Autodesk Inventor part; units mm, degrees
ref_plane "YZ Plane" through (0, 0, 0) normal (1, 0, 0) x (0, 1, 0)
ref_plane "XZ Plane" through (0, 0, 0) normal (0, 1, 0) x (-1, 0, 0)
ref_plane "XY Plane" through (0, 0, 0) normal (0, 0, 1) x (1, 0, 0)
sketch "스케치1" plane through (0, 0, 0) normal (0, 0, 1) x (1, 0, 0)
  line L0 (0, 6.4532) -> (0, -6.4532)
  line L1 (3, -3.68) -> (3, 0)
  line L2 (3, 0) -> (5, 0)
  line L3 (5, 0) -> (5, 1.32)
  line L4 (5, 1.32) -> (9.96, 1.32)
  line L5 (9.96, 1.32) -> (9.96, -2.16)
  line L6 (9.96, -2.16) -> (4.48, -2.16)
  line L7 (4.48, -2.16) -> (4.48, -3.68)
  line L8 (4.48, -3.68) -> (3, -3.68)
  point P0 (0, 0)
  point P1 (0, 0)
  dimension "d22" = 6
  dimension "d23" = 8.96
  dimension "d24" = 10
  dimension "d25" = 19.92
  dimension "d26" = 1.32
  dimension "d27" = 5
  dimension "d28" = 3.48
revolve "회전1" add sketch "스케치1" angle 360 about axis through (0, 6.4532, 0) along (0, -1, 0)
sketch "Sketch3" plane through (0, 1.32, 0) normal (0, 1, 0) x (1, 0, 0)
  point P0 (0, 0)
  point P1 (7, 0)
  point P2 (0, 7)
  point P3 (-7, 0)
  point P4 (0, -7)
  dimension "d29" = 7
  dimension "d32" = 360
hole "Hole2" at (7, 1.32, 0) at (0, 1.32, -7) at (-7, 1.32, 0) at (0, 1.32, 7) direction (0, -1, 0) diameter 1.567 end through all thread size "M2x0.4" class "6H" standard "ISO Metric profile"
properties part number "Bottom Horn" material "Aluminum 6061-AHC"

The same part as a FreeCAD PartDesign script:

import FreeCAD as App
import Part
import Sketcher
from FreeCAD import Vector
Q = App.Units.Quantity

doc = App.newDocument("Part")
body = doc.addObject("PartDesign::Body", "Body")

# Sketch on XY plane
sketch1 = body.newObject("Sketcher::SketchObject", "Sketch")
sketch1.AttachmentSupport = (doc.getObject("XY_Plane"), [""])
sketch1.MapMode = "FlatFace"
sketch1.addGeometry(Part.LineSegment(Vector(3, 0, 0), Vector(3, -3.68, 0)), False)
sketch1.addGeometry(Part.LineSegment(Vector(3, -3.68, 0), Vector(4.48, -3.68, 0)), False)
sketch1.addGeometry(Part.LineSegment(Vector(4.48, -3.68, 0), Vector(4.48, -2.16, 0)), False)
sketch1.addGeometry(Part.LineSegment(Vector(4.48, -2.16, 0), Vector(9.96, -2.16, 0)), False)
sketch1.addGeometry(Part.LineSegment(Vector(9.96, -2.16, 0), Vector(9.96, 1.32, 0)), False)
sketch1.addGeometry(Part.LineSegment(Vector(9.96, 1.32, 0), Vector(5, 1.32, 0)), False)
sketch1.addGeometry(Part.LineSegment(Vector(5, 1.32, 0), Vector(5, 0, 0)), False)
sketch1.addGeometry(Part.LineSegment(Vector(5, 0, 0), Vector(3, 0, 0)), False)
sketch1.addConstraint(Sketcher.Constraint("Coincident", 0, 2, 1, 1))
sketch1.addConstraint(Sketcher.Constraint("Coincident", 1, 2, 2, 1))
sketch1.addConstraint(Sketcher.Constraint("Coincident", 2, 2, 3, 1))
sketch1.addConstraint(Sketcher.Constraint("Coincident", 3, 2, 4, 1))
sketch1.addConstraint(Sketcher.Constraint("Coincident", 4, 2, 5, 1))
sketch1.addConstraint(Sketcher.Constraint("Coincident", 5, 2, 6, 1))
sketch1.addConstraint(Sketcher.Constraint("Coincident", 6, 2, 7, 1))
sketch1.addConstraint(Sketcher.Constraint("Coincident", 7, 2, 0, 1))
sketch1.addConstraint(Sketcher.Constraint("Vertical", 0))
sketch1.addConstraint(Sketcher.Constraint("Horizontal", 1))
sketch1.addConstraint(Sketcher.Constraint("Vertical", 2))
sketch1.addConstraint(Sketcher.Constraint("Horizontal", 3))
sketch1.addConstraint(Sketcher.Constraint("Vertical", 4))
sketch1.addConstraint(Sketcher.Constraint("Horizontal", 5))
sketch1.addConstraint(Sketcher.Constraint("Vertical", 6))
sketch1.addConstraint(Sketcher.Constraint("Horizontal", 7))
sketch1.addConstraint(Sketcher.Constraint("PointOnObject", 6, 2, -1))
sketch1.addConstraint(Sketcher.Constraint("DistanceX", -1, 1, 5, 2, Q("5 mm")))
sketch1.addConstraint(Sketcher.Constraint("DistanceY", 1, 2, 4, 2, Q("5 mm")))
sketch1.addConstraint(Sketcher.Constraint("DistanceY", 4, 1, 4, 2, Q("3.48 mm")))
sketch1.addConstraint(Sketcher.Constraint("DistanceY", 6, 2, 6, 1, Q("1.32 mm")))
sketch1.addConstraint(Sketcher.Constraint("DistanceX", 7, 2, 7, 1, Q("2 mm")))
sketch1.addConstraint(Sketcher.Constraint("DistanceX", 1, 1, 1, 2, Q("1.48 mm")))
sketch1.addConstraint(Sketcher.Constraint("DistanceX", 3, 1, 3, 2, Q("5.48 mm")))
revolution = body.newObject("PartDesign::Revolution", "Revolution")
revolution.Profile = sketch1
revolution.ReferenceAxis = (sketch1, ["V_Axis"])
revolution.Angle = 360

# Sketch on XZ plane
sketch2 = body.newObject("Sketcher::SketchObject", "Sketch001")
sketch2.AttachmentSupport = (doc.getObject("XZ_Plane"), [""])
sketch2.MapMode = "FlatFace"
sketch2.AttachmentOffset = App.Placement(Vector(0, 0, -1.32), App.Rotation())
sketch2.addGeometry(Part.Circle(Vector(7, 0, 0), Vector(0, 0, 1), 0.7835), False)
sketch2.addGeometry(Part.Circle(Vector(0, -7, 0), Vector(0, 0, 1), 0.7835), False)
sketch2.addGeometry(Part.Circle(Vector(-7, 0, 0), Vector(0, 0, 1), 0.7835), False)
sketch2.addGeometry(Part.Circle(Vector(0, 7, 0), Vector(0, 0, 1), 0.7835), False)
sketch2.addConstraint(Sketcher.Constraint("Equal", 0, 1))
sketch2.addConstraint(Sketcher.Constraint("Equal", 1, 2))
sketch2.addConstraint(Sketcher.Constraint("Equal", 2, 3))
sketch2.addConstraint(Sketcher.Constraint("Symmetric", 0, 3, 2, 3, -1, 1))
sketch2.addConstraint(Sketcher.Constraint("Symmetric", 1, 3, 3, 3, -1, 1))
sketch2.addConstraint(Sketcher.Constraint("PointOnObject", 0, 3, -1))
sketch2.addConstraint(Sketcher.Constraint("PointOnObject", 1, 3, -2))
sketch2.addConstraint(Sketcher.Constraint("Diameter", 0, Q("1.567 mm")))
sketch2.addConstraint(Sketcher.Constraint("DistanceX", -1, 1, 0, 3, Q("7 mm")))
sketch2.addConstraint(Sketcher.Constraint("DistanceY", 1, 3, -1, 1, Q("7 mm")))
doc.recompute()
hole = body.newObject("PartDesign::Hole", "Hole")
hole.Profile = sketch2
hole.ThreadType = "None"
hole.Diameter = 1.567
hole.DepthType = "ThroughAll"
hole.Reversed = True

doc.recompute()
